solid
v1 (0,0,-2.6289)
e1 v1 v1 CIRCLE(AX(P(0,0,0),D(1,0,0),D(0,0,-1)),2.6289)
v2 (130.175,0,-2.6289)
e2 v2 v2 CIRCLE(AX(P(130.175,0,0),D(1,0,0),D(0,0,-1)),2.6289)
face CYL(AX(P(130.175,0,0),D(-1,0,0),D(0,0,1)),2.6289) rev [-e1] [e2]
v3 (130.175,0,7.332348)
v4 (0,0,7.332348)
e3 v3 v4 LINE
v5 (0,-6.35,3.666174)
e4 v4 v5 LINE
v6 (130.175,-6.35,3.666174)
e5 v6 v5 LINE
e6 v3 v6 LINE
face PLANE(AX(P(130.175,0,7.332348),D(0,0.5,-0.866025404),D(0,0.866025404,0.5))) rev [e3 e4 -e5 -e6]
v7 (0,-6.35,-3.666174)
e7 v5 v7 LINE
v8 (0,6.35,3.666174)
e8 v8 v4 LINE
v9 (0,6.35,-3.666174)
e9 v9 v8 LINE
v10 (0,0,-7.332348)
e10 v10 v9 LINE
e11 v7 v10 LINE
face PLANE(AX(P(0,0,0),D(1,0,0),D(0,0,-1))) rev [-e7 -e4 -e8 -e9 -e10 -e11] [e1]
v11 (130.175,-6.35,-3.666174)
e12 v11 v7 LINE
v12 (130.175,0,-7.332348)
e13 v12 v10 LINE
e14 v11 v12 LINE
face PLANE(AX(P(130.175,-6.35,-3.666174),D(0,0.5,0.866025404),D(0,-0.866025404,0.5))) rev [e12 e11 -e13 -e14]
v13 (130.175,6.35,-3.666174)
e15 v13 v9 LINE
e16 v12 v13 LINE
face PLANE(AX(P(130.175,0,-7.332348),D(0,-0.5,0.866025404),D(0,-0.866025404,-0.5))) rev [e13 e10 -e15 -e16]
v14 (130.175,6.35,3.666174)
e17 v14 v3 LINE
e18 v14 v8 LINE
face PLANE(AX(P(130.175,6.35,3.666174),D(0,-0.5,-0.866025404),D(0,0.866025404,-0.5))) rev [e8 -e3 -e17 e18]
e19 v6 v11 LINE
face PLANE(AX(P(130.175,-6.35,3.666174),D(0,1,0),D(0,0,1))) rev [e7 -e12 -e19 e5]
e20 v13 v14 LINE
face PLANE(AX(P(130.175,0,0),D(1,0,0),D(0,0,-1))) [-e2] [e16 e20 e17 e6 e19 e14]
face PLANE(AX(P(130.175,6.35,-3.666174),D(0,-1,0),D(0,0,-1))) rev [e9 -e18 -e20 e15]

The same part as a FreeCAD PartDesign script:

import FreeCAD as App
import Part
import Sketcher
from FreeCAD import Vector
Q = App.Units.Quantity


def add_polygon(sketch, points):
    """Adds a closed chain of lines whose ends are joined by coincident constraints."""
    first, n = sketch.GeometryCount, len(points)
    for a, b in zip(points, points[1:] + points[:1]):
        sketch.addGeometry(Part.LineSegment(App.Vector(*a, 0), App.Vector(*b, 0)), False)
    for i in range(n):
        sketch.addConstraint(Sketcher.Constraint("Coincident", first + i, 2, first + (i + 1) % n, 1))

doc = App.newDocument("Part")
body = doc.addObject("PartDesign::Body", "Body")

# Sketch on YZ plane
sketch1 = doc.addObject("Sketcher::SketchObject", "Sketch")
body.addObject(sketch1)
sketch1.AttachmentSupport = (doc.YZ_Plane, [""])
sketch1.MapMode = "FlatFace"
add_polygon(sketch1, [(6.3, -3.7), (6.3, 3.7), (0, 7.3), (-6.3, 3.7), (-6.3, -3.7), (0, -7.3)])  # lines 0-5
sketch1.addGeometry(Part.Circle(Vector(0, 0, 0), Vector(0, 0, 1), 2.6), False)  # 6
sketch1.addConstraint([
    Sketcher.Constraint("Vertical", 0),
    Sketcher.Constraint("Vertical", 3),
    Sketcher.Constraint("Coincident", 6, 3, -1, 1),
    Sketcher.Constraint("Symmetric", 0, 2, 3, 2, -1, 1),
    Sketcher.Constraint("Symmetric", 1, 2, 4, 2, -1, 1),
    Sketcher.Constraint("PointOnObject", 1, 2, -2),
    Sketcher.Constraint("Parallel", 2, 5),
    Sketcher.Constraint("Horizontal", 0, 2, 2, 2),
    Sketcher.Constraint("Diameter", 6, Q("0.207 in")),
    Sketcher.Constraint("Angle", 1, Q("150 deg")),
    Sketcher.Constraint("DistanceX", 2, 2, 0, 2, Q("0.5 in")),
    Sketcher.Constraint("DistanceY", 0, 1, 0, 2, Q("7.332348 mm")),
])
pad1 = doc.addObject("PartDesign::Pad", "Pad")
body.addObject(pad1)
pad1.Profile = sketch1
pad1.Length = Q("5.125 in")

doc.recompute()
